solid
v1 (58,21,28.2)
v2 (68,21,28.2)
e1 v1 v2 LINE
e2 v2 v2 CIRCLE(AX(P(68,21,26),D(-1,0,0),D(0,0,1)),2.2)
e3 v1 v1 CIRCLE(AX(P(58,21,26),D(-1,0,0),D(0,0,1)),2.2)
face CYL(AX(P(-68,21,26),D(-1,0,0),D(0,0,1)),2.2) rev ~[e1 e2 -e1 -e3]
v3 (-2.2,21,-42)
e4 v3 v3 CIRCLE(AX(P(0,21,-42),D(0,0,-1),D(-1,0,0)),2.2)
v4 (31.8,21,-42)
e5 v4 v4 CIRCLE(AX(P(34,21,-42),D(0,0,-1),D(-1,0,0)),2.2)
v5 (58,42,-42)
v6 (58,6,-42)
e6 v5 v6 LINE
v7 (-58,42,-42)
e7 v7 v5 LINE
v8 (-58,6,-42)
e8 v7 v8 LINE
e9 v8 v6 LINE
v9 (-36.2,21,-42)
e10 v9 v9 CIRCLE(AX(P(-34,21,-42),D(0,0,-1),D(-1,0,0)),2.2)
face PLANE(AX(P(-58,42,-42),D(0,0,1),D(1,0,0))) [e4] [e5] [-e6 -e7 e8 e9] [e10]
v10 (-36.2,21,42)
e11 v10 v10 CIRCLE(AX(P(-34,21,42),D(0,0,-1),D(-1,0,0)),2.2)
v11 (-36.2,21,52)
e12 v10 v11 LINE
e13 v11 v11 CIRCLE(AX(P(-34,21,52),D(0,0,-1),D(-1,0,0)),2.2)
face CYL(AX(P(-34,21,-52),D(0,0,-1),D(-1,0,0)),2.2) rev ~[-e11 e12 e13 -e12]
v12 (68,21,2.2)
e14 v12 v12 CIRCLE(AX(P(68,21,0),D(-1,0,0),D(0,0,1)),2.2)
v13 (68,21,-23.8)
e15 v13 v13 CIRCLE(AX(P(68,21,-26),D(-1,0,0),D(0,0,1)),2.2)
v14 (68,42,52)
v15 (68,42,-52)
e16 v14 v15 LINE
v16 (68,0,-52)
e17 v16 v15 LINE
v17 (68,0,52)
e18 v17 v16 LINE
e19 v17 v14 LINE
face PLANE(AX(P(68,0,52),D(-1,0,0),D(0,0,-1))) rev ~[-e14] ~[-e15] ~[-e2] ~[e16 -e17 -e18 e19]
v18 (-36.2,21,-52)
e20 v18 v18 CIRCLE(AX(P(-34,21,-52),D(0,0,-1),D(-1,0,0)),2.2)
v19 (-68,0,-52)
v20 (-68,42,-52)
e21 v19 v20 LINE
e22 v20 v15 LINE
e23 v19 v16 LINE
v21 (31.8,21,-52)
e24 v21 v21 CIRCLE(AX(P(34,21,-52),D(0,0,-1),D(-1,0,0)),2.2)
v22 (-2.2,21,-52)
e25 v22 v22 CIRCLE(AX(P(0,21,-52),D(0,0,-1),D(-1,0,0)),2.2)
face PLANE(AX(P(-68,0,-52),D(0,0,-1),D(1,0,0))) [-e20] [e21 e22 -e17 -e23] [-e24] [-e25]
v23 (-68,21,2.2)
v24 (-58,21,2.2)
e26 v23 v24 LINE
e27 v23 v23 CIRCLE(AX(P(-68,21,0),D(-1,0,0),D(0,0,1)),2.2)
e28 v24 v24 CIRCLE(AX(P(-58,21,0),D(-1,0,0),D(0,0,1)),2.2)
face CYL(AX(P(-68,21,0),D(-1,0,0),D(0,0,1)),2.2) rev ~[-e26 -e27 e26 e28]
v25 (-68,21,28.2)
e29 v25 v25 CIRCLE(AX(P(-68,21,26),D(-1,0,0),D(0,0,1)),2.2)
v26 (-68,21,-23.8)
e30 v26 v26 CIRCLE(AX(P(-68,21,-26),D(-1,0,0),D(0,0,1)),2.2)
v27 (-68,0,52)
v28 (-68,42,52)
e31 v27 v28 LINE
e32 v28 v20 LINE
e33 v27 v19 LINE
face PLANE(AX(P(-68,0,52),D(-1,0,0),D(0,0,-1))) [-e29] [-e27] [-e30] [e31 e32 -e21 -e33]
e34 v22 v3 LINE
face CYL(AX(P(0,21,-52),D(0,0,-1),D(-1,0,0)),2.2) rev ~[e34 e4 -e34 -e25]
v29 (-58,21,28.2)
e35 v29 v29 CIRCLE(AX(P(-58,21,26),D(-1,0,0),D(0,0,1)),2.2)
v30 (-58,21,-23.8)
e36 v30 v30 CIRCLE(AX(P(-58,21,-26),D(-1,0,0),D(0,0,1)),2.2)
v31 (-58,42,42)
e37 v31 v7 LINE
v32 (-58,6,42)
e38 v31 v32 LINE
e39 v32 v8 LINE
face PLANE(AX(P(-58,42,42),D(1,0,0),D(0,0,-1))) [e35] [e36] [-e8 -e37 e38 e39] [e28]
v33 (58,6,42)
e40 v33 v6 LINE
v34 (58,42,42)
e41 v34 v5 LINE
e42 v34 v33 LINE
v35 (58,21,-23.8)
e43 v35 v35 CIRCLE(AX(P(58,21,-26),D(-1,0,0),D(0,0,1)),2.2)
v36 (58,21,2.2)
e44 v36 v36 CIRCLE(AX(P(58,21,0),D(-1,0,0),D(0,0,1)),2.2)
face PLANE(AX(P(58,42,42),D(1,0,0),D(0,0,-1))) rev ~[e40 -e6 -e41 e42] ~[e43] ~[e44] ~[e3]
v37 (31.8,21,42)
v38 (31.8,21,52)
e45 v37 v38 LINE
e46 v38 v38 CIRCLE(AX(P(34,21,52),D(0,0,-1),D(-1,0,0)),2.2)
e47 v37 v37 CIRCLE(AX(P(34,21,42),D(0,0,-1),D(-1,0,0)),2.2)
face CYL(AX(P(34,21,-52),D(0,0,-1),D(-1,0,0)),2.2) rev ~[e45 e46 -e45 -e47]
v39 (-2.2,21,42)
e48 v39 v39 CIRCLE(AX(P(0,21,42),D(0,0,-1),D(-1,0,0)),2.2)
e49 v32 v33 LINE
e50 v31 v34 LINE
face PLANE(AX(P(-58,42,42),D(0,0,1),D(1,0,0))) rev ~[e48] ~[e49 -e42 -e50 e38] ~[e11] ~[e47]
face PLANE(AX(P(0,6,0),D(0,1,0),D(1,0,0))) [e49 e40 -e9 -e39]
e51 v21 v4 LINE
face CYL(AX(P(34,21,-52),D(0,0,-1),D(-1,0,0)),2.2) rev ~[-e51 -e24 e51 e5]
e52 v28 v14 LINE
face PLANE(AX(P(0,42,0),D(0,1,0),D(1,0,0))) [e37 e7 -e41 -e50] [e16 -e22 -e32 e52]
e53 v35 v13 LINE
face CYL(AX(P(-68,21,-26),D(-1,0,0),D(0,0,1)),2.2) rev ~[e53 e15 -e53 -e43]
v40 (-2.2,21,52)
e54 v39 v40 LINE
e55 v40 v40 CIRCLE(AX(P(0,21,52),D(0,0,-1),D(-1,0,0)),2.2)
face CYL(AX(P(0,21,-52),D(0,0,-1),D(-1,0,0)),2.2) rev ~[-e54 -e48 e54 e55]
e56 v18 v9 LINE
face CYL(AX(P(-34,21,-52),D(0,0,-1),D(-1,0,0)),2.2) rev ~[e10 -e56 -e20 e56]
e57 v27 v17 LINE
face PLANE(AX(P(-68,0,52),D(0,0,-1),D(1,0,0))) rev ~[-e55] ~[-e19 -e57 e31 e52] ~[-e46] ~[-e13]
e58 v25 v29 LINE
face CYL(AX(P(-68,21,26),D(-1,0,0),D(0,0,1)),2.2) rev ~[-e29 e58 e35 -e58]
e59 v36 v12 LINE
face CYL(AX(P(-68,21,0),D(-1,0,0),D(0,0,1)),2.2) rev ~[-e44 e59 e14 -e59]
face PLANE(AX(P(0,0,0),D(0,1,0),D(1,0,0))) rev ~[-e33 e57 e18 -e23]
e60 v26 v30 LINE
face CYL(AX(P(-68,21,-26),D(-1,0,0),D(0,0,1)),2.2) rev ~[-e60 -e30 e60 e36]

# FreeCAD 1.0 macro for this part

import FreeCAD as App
import Part
import Sketcher
Q = App.Units.Quantity


def add_polygon(sketch, points):
    """Adds a closed chain of lines whose ends are joined by coincident constraints."""
    first, n = sketch.GeometryCount, len(points)
    for a, b in zip(points, points[1:] + points[:1]):
        sketch.addGeometry(Part.LineSegment(App.Vector(*a, 0), App.Vector(*b, 0)), False)
    for i in range(n):
        sketch.addConstraint(Sketcher.Constraint("Coincident", first + i, 2, first + (i + 1) % n, 1))

doc = App.newDocument("Part")
body = doc.addObject("PartDesign::Body", "Body")

# Sketch on XZ plane
sketch1 = doc.addObject("Sketcher::SketchObject", "Sketch")
body.addObject(sketch1)
sketch1.AttachmentSupport = (doc.XZ_Plane, [""])
sketch1.MapMode = "FlatFace"
add_polygon(sketch1, [(-68, -52), (-68, 52), (68, 52), (68, -52)])  # lines 0-3
sketch1.addConstraint([
    Sketcher.Constraint("Vertical", 0),
    Sketcher.Constraint("Horizontal", 1),
    Sketcher.Constraint("Vertical", 2),
    Sketcher.Constraint("Horizontal", 3),
    Sketcher.Constraint("Symmetric", 0, 2, 2, 2, -1, 1),
    Sketcher.Constraint("DistanceX", 1, 1, 1, 2, Q("136 mm")),
    Sketcher.Constraint("DistanceY", 0, 1, 0, 2, Q("104 mm")),
])
pad1 = doc.addObject("PartDesign::Pad", "Pad")
body.addObject(pad1)
pad1.Profile = sketch1
pad1.Length = 42
pad1.Reversed = True

# Sketch on XZ plane
sketch2 = doc.addObject("Sketcher::SketchObject", "Sketch001")
body.addObject(sketch2)
sketch2.AttachmentSupport = (doc.XZ_Plane, [""])
sketch2.MapMode = "FlatFace"
sketch2.AttachmentOffset = App.Placement(App.Vector(0, 0, -42), App.Rotation())
add_polygon(sketch2, [(-58, -42), (-58, 42), (58, 42), (58, -42)])  # lines 0-3
sketch2.addConstraint([
    Sketcher.Constraint("Vertical", 0),
    Sketcher.Constraint("Horizontal", 1),
    Sketcher.Constraint("Vertical", 2),
    Sketcher.Constraint("Horizontal", 3),
    Sketcher.Constraint("Symmetric", 0, 2, 2, 2, -1, 1),
    Sketcher.Constraint("DistanceX", 1, 1, 1, 2, Q("116 mm")),
    Sketcher.Constraint("DistanceY", 0, 1, 0, 2, Q("84 mm")),
])
pocket1 = doc.addObject("PartDesign::Pocket", "Pocket")
body.addObject(pocket1)
pocket1.Profile = sketch2
pocket1.Length = 36
pocket1.Reversed = True

# Sketch on YZ plane
sketch3 = doc.addObject("Sketcher::SketchObject", "Sketch002")
body.addObject(sketch3)
sketch3.AttachmentSupport = (doc.YZ_Plane, [""])
sketch3.MapMode = "FlatFace"
sketch3.AttachmentOffset = App.Placement(App.Vector(0, 0, -68), App.Rotation())
sketch3.addGeometry([
    Part.Circle(App.Vector(21, -26, 0), App.Vector(0, 0, 1), 2.2),
    Part.Circle(App.Vector(21, 26, 0), App.Vector(0, 0, 1), 2.2),
    Part.Circle(App.Vector(21, 0, 0), App.Vector(0, 0, 1), 2.2),
], False)
sketch3.addConstraint([
    Sketcher.Constraint("Equal", 0, 1),
    Sketcher.Constraint("Equal", 1, 2),
    Sketcher.Constraint("Symmetric", 0, 3, 1, 3, -1),
    Sketcher.Constraint("PointOnObject", 2, 3, -1),
    Sketcher.Constraint("Vertical", 1, 3, 2, 3),
    Sketcher.Constraint("Diameter", 0, Q("4.4 mm")),
    Sketcher.Constraint("DistanceX", -1, 1, 0, 3, Q("21 mm")),
    Sketcher.Constraint("DistanceY", 0, 3, -1, 1, Q("26 mm")),
])
pocket2 = doc.addObject("PartDesign::Pocket", "Pocket001")
body.addObject(pocket2)
pocket2.Profile = sketch3
pocket2.Length = 136
pocket2.Reversed = True

# Sketch on XY plane
sketch4 = doc.addObject("Sketcher::SketchObject", "Sketch003")
body.addObject(sketch4)
sketch4.AttachmentSupport = (doc.XY_Plane, [""])
sketch4.MapMode = "FlatFace"
sketch4.AttachmentOffset = App.Placement(App.Vector(0, 0, -52), App.Rotation())
sketch4.addGeometry([
    Part.Circle(App.Vector(34, 21, 0), App.Vector(0, 0, 1), 2.2),
    Part.Circle(App.Vector(-34, 21, 0), App.Vector(0, 0, 1), 2.2),
    Part.Circle(App.Vector(0, 21, 0), App.Vector(0, 0, 1), 2.2),
], False)
sketch4.addConstraint([
    Sketcher.Constraint("Equal", 0, 1),
    Sketcher.Constraint("Equal", 1, 2),
    Sketcher.Constraint("Symmetric", 0, 3, 1, 3, -2),
    Sketcher.Constraint("PointOnObject", 2, 3, -2),
    Sketcher.Constraint("Horizontal", 1, 3, 2, 3),
    Sketcher.Constraint("Diameter", 0, Q("4.4 mm")),
    Sketcher.Constraint("DistanceX", -1, 1, 0, 3, Q("34 mm")),
    Sketcher.Constraint("DistanceY", -1, 1, 0, 3, Q("21 mm")),
])
pocket3 = doc.addObject("PartDesign::Pocket", "Pocket002")
body.addObject(pocket3)
pocket3.Profile = sketch4
pocket3.Length = 104
pocket3.Reversed = True

doc.recompute()
